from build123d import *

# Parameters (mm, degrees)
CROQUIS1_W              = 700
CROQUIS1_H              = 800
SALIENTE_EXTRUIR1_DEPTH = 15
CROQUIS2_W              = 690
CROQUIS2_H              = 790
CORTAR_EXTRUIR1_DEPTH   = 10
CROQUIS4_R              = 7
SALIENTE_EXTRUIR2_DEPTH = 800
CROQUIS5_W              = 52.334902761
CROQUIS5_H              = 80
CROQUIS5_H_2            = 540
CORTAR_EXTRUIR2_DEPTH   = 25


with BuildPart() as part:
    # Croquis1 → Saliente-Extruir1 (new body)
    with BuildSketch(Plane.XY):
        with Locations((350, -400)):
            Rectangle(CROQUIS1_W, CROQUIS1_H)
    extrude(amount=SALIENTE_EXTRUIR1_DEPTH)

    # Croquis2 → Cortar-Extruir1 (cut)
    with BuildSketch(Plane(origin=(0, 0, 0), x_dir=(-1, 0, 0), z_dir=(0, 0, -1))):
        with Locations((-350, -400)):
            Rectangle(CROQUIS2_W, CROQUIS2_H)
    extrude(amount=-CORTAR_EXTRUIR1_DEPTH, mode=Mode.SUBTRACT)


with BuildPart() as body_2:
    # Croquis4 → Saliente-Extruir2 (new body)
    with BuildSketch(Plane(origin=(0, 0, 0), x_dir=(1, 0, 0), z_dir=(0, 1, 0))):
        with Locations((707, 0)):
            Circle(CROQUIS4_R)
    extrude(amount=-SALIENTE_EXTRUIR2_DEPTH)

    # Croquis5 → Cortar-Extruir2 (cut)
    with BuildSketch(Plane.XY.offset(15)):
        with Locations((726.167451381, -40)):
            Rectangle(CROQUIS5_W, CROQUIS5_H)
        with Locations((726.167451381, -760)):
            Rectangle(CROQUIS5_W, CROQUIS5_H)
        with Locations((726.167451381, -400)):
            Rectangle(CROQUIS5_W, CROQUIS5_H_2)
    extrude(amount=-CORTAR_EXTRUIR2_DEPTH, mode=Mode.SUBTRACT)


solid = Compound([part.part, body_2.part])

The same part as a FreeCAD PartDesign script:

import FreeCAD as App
import Part
import Sketcher

V = App.Vector
Q = App.Units.Quantity


def add_polygon(sketch, points):
    """Adds a closed chain of lines whose ends are joined by coincident constraints."""
    first, n = sketch.GeometryCount, len(points)
    for a, b in zip(points, points[1:] + points[:1]):
        sketch.addGeometry(Part.LineSegment(App.Vector(*a, 0), App.Vector(*b, 0)), False)
    for i in range(n):
        sketch.addConstraint(Sketcher.Constraint("Coincident", first + i, 2, first + (i + 1) % n, 1))

doc = App.newDocument("Part")
body = doc.addObject("PartDesign::Body", "Body")

# Sketch on XY plane
sketch1 = doc.addObject("Sketcher::SketchObject", "Sketch")
body.addObject(sketch1)
sketch1.AttachmentSupport = (doc.XY_Plane, [""])
sketch1.MapMode = "FlatFace"
add_polygon(sketch1, [(0, 0), (0, -800), (700, -800), (700, 0)])  # lines 0-3
sketch1.addConstraint([
    Sketcher.Constraint("Vertical", 0),
    Sketcher.Constraint("Horizontal", 1),
    Sketcher.Constraint("Vertical", 2),
    Sketcher.Constraint("Horizontal", 3),
    Sketcher.Constraint("Coincident", 3, 2, -1, 1),
    Sketcher.Constraint("DistanceX", 1, 1, 1, 2, Q("700 mm")),
    Sketcher.Constraint("DistanceY", 0, 2, 0, 1, Q("800 mm")),
])
pad1 = doc.addObject("PartDesign::Pad", "Pad")
body.addObject(pad1)
pad1.Profile = sketch1
pad1.Length = 15

# Sketch on XY plane
sketch2 = doc.addObject("Sketcher::SketchObject", "Sketch001")
body.addObject(sketch2)
sketch2.AttachmentSupport = (doc.XY_Plane, [""])
sketch2.MapMode = "FlatFace"
add_polygon(sketch2, [(695, -5), (695, -795), (5, -795), (5, -5)])  # lines 0-3
sketch2.addConstraint([
    Sketcher.Constraint("Vertical", 0),
    Sketcher.Constraint("Horizontal", 1),
    Sketcher.Constraint("Vertical", 2),
    Sketcher.Constraint("Horizontal", 3),
    Sketcher.Constraint("DistanceX", 1, 2, 1, 1, Q("690 mm")),
    Sketcher.Constraint("DistanceY", 0, 2, 0, 1, Q("790 mm")),
    Sketcher.Constraint("DistanceX", -1, 1, 0, 2, Q("695 mm")),
    Sketcher.Constraint("DistanceY", 0, 2, -1, 1, Q("795 mm")),
])
pocket1 = doc.addObject("PartDesign::Pocket", "Pocket")
body.addObject(pocket1)
pocket1.Profile = sketch2
pocket1.Length = 10
pocket1.Reversed = True
body2 = doc.addObject("PartDesign::Body", "Body001")
body2.AllowCompound = True

# Sketch on XZ plane
sketch3 = doc.addObject("Sketcher::SketchObject", "Sketch002")
body2.addObject(sketch3)
sketch3.AttachmentSupport = (doc.getObject("XZ_Plane001"), [""])
sketch3.MapMode = "FlatFace"
sketch3.addGeometry(Part.Circle(V(707, 0, 0), V(0, 0, 1), 7), False)
sketch3.addConstraint([
    Sketcher.Constraint("PointOnObject", 0, 3, -1),
    Sketcher.Constraint("Diameter", 0, Q("14 mm")),
    Sketcher.Constraint("DistanceX", -1, 1, 0, 3, Q("707 mm")),
])
pad2 = doc.addObject("PartDesign::Pad", "Pad001")
body2.addObject(pad2)
pad2.Profile = sketch3
pad2.Length = 800

# Sketch on XY plane
sketch4 = doc.addObject("Sketcher::SketchObject", "Sketch003")
body2.addObject(sketch4)
sketch4.AttachmentSupport = (doc.getObject("XY_Plane001"), [""])
sketch4.MapMode = "FlatFace"
sketch4.AttachmentOffset = App.Placement(V(0, 0, 15), App.Rotation())
add_polygon(sketch4, [(700, 0), (700, -80), (752.334903, -80), (752.334903, 0)])  # lines 0-3
add_polygon(sketch4, [(700, -720), (700, -800), (752.334903, -800), (752.334903, -720)])  # lines 4-7
add_polygon(sketch4, [(700, -130), (700, -670), (752.334903, -670), (752.334903, -130)])  # lines 8-11
sketch4.addConstraint([
    Sketcher.Constraint("Vertical", 0),
    Sketcher.Constraint("Horizontal", 1),
    Sketcher.Constraint("Vertical", 2),
    Sketcher.Constraint("Horizontal", 3),
    Sketcher.Constraint("Vertical", 4),
    Sketcher.Constraint("Horizontal", 5),
    Sketcher.Constraint("Vertical", 6),
    Sketcher.Constraint("Horizontal", 7),
    Sketcher.Constraint("Vertical", 8),
    Sketcher.Constraint("Horizontal", 9),
    Sketcher.Constraint("Vertical", 10),
    Sketcher.Constraint("Horizontal", 11),
    Sketcher.Constraint("PointOnObject", 2, 2, -1),
    Sketcher.Constraint("Vertical", 3, 2, 4, 2),
    Sketcher.Constraint("Vertical", 2, 2, 5, 2),
    Sketcher.Constraint("Vertical", 7, 2, 8, 2),
    Sketcher.Constraint("Vertical", 6, 2, 9, 2),
    Sketcher.Constraint("Equal", 2, 4),
    Sketcher.Constraint("DistanceY", 0, 2, 0, 1, Q("80 mm")),
    Sketcher.Constraint("DistanceY", 8, 2, 8, 1, Q("540 mm")),
    Sketcher.Constraint("DistanceX", -1, 1, 0, 2, Q("700 mm")),
    Sketcher.Constraint("DistanceY", 4, 2, -1, 1, Q("800 mm")),
    Sketcher.Constraint("DistanceY", 8, 2, -1, 1, Q("670 mm")),
    Sketcher.Constraint("DistanceX", 1, 1, 1, 2, Q("52.334903 mm")),
])
pocket2 = doc.addObject("PartDesign::Pocket", "Pocket001")
body2.addObject(pocket2)
pocket2.Profile = sketch4
pocket2.Length = 25

doc.recompute()
